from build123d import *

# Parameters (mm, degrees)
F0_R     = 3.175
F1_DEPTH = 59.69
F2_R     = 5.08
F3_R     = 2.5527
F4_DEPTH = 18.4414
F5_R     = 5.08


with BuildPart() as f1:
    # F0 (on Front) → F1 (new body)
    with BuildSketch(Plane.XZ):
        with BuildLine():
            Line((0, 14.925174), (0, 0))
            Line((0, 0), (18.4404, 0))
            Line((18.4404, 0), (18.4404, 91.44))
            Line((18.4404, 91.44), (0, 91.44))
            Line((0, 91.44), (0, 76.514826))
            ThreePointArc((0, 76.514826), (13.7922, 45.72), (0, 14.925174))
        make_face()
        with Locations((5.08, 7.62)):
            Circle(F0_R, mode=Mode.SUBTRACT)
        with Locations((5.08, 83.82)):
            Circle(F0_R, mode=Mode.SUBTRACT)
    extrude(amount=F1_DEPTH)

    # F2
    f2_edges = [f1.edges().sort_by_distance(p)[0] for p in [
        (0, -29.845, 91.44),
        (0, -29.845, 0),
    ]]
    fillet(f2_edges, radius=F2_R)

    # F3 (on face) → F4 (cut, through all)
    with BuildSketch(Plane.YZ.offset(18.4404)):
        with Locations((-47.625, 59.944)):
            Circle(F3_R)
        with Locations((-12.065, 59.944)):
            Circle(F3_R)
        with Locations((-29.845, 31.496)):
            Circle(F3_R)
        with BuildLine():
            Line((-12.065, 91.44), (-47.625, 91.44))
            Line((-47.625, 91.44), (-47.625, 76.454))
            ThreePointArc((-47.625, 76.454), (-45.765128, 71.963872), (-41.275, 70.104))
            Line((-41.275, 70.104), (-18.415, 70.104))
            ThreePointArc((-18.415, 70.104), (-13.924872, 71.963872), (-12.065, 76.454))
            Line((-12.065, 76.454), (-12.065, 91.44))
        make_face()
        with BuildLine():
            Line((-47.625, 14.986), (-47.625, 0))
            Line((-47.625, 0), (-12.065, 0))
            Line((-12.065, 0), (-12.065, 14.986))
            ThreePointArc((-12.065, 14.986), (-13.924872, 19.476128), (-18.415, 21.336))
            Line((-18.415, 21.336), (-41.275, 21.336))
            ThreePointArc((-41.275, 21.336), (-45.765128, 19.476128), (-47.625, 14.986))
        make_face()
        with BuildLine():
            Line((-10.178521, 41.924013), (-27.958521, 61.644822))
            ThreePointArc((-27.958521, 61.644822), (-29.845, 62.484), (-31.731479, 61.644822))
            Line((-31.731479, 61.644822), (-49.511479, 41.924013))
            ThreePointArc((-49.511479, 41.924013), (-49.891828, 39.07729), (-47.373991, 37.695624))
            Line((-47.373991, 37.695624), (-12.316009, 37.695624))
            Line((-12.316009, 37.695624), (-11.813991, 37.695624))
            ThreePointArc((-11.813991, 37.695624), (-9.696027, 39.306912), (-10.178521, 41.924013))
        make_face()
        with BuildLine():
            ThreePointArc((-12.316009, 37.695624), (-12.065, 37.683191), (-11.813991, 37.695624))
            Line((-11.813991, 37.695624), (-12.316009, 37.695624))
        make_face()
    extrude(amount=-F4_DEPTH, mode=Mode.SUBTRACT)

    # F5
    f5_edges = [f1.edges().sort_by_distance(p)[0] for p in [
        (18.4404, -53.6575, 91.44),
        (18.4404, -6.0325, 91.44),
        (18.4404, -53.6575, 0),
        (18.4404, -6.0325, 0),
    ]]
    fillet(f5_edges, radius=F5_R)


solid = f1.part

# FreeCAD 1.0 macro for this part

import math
import FreeCAD as App
import Part
import Sketcher

V = App.Vector
Q = App.Units.Quantity


def edges_at(feature, points):
    """Names of the edges that pass closest to the given points."""
    edges = feature.Shape.Edges
    near = lambda p: min(range(len(edges)), key=lambda i: edges[i].distToShape(Part.Vertex(*p))[0])
    return sorted({f"Edge{near(p) + 1}" for p in points})

doc = App.newDocument("Part")
body = doc.addObject("PartDesign::Body", "Body")

sketch1 = body.newObject("Sketcher::SketchObject", "Sketch")
sketch1.AttachmentSupport = (doc.getObject("XZ_Plane"), [""])
sketch1.MapMode = "FlatFace"
sketch1.addGeometry([
    Part.LineSegment(V(0, 14.9, 0), V(0, 0, 0)),
    Part.LineSegment(V(0, 0, 0), V(18.4, 0, 0)),
    Part.LineSegment(V(18.4, 0, 0), V(18.4, 91.4, 0)),
    Part.LineSegment(V(18.4, 91.4, 0), V(0, 91.4, 0)),
    Part.LineSegment(V(0, 91.4, 0), V(0, 76.5, 0)),
    Part.ArcOfCircle(Part.Circle(V(-27.5, 45.7, 0), V(0, 0, 1), 41.3), math.radians(-48), math.radians(48)),
    Part.Circle(V(5.1, 7.6, 0), V(0, 0, 1), 3.2),
    Part.Circle(V(5.1, 83.8, 0), V(0, 0, 1), 3.2),
], False)
sketch1.addConstraint([
    Sketcher.Constraint("Coincident", 0, 2, 1, 1),
    Sketcher.Constraint("Coincident", 1, 2, 2, 1),
    Sketcher.Constraint("Coincident", 2, 2, 3, 1),
    Sketcher.Constraint("Coincident", 3, 2, 4, 1),
    Sketcher.Constraint("Coincident", 4, 2, 5, 2),
    Sketcher.Constraint("Coincident", 5, 1, 0, 1),
    Sketcher.Constraint("Vertical", 0),
    Sketcher.Constraint("Horizontal", 1),
    Sketcher.Constraint("Vertical", 2),
    Sketcher.Constraint("Horizontal", 3),
    Sketcher.Constraint("Vertical", 4),
    Sketcher.Constraint("Coincident", 0, 2, -1, 1),
    Sketcher.Constraint("Equal", 6, 7),
    Sketcher.Constraint("PointOnObject", 3, 2, -2),
    Sketcher.Constraint("Vertical", 6, 3, 7, 3),
    Sketcher.Constraint("Equal", 0, 4),
    Sketcher.Constraint("Diameter", 6, Q("0.25 in")),
    Sketcher.Constraint("DistanceY", 2, 1, 2, 2, Q("3.6 in")),
    Sketcher.Constraint("Radius", 5, Q("1.625 in")),
    Sketcher.Constraint("DistanceY", 6, 3, 7, 3, Q("3 in")),
    Sketcher.Constraint("DistanceX", -1, 1, 6, 3, Q("0.2 in")),
    Sketcher.Constraint("DistanceY", -1, 1, 6, 3, Q("0.3 in")),
    Sketcher.Constraint("DistanceX", 1, 1, 1, 2, Q("0.726 in")),
    Sketcher.Constraint("DistanceX", 5, 3, -1, 1, Q("1.082 in")),
])
pad1 = body.newObject("PartDesign::Pad", "Pad")
pad1.Profile = sketch1
pad1.Length = Q("2.35 in")
doc.recompute()

fillet = body.newObject("PartDesign::Fillet", "Fillet")
fillet.Base = (pad1, edges_at(pad1, [(0, -29.845, 91.44), (0, -29.845, 0)]))
fillet.Radius = Q("0.2 in")

sketch2 = body.newObject("Sketcher::SketchObject", "Sketch001")
sketch2.AttachmentSupport = (doc.getObject("YZ_Plane"), [""])
sketch2.MapMode = "FlatFace"
sketch2.AttachmentOffset = App.Placement(V(0, 0, 0.726 * 25.4), App.Rotation())
sketch2.addGeometry([
    Part.Circle(V(-47.6, 59.9, 0), V(0, 0, 1), 2.6),
    Part.Circle(V(-12.1, 59.9, 0), V(0, 0, 1), 2.6),
    Part.Circle(V(-29.8, 31.5, 0), V(0, 0, 1), 2.6),
    Part.LineSegment(V(-12.1, 91.4, 0), V(-47.6, 91.4, 0)),
    Part.LineSegment(V(-47.6, 91.4, 0), V(-47.6, 76.5, 0)),
    Part.ArcOfCircle(Part.Circle(V(-41.3, 76.5, 0), V(0, 0, 1), 6.4), math.radians(-180), math.radians(-90)),
    Part.LineSegment(V(-41.3, 70.1, 0), V(-18.4, 70.1, 0)),
    Part.ArcOfCircle(Part.Circle(V(-18.4, 76.5, 0), V(0, 0, 1), 6.4), math.radians(-90), math.radians(0)),
    Part.LineSegment(V(-12.1, 76.5, 0), V(-12.1, 91.4, 0)),
    Part.LineSegment(V(-47.6, 15, 0), V(-47.6, 0, 0)),
    Part.LineSegment(V(-47.6, 0, 0), V(-12.1, 0, 0)),
    Part.LineSegment(V(-12.1, 0, 0), V(-12.1, 15, 0)),
    Part.ArcOfCircle(Part.Circle(V(-18.4, 15, 0), V(0, 0, 1), 6.4), math.radians(0), math.radians(90)),
    Part.LineSegment(V(-18.4, 21.3, 0), V(-41.3, 21.3, 0)),
    Part.ArcOfCircle(Part.Circle(V(-41.3, 15, 0), V(0, 0, 1), 6.4), math.radians(90), math.radians(180)),
    Part.LineSegment(V(-10.2, 41.9, 0), V(-28, 61.6, 0)),
    Part.ArcOfCircle(Part.Circle(V(-29.8, 59.9, 0), V(0, 0, 1), 2.5), math.radians(42), math.radians(138)),
    Part.LineSegment(V(-31.7, 61.6, 0), V(-49.5, 41.9, 0)),
    Part.ArcOfCircle(Part.Circle(V(-47.6, 40.2, 0), V(0, 0, 1), 2.5), math.radians(138), math.radians(276)),
    Part.LineSegment(V(-47.4, 37.7, 0), V(-12.3, 37.7, 0)),
    Part.ArcOfCircle(Part.Circle(V(-12.1, 40.2, 0), V(0, 0, 1), 2.5), math.radians(-95.67), math.radians(-84.33)),
    Part.ArcOfCircle(Part.Circle(V(-12.1, 40.2, 0), V(0, 0, 1), 2.5), math.radians(-84), math.radians(42)),
], False)
sketch2.addConstraint([
    Sketcher.Constraint("Coincident", 3, 2, 4, 1),
    Sketcher.Constraint("Tangent", 4, 2, 5, 1),
    Sketcher.Constraint("Tangent", 5, 2, 6, 1),
    Sketcher.Constraint("Tangent", 6, 2, 7, 1),
    Sketcher.Constraint("Tangent", 7, 2, 8, 1),
    Sketcher.Constraint("Coincident", 8, 2, 3, 1),
    Sketcher.Constraint("Coincident", 9, 2, 10, 1),
    Sketcher.Constraint("Coincident", 10, 2, 11, 1),
    Sketcher.Constraint("Tangent", 11, 2, 12, 1),
    Sketcher.Constraint("Tangent", 12, 2, 13, 1),
    Sketcher.Constraint("Tangent", 13, 2, 14, 1),
    Sketcher.Constraint("Tangent", 14, 2, 9, 1),
    Sketcher.Constraint("Tangent", 15, 2, 16, 1),
    Sketcher.Constraint("Tangent", 16, 2, 17, 1),
    Sketcher.Constraint("Tangent", 17, 2, 18, 1),
    Sketcher.Constraint("Coincident", 18, 2, 19, 1),
    Sketcher.Constraint("Coincident", 19, 2, 20, 1),
    Sketcher.Constraint("Tangent", 20, 2, 21, 1),
    Sketcher.Constraint("Tangent", 21, 2, 15, 1),
    Sketcher.Constraint("Horizontal", 3),
    Sketcher.Constraint("Vertical", 4),
    Sketcher.Constraint("Horizontal", 6),
    Sketcher.Constraint("Vertical", 8),
    Sketcher.Constraint("Vertical", 9),
    Sketcher.Constraint("Horizontal", 10),
    Sketcher.Constraint("Vertical", 11),
    Sketcher.Constraint("Horizontal", 13),
    Sketcher.Constraint("Horizontal", 19),
    Sketcher.Constraint("Equal", 0, 1),
    Sketcher.Constraint("Equal", 1, 2),
    Sketcher.Constraint("Equal", 5, 7),
    Sketcher.Constraint("Equal", 7, 12),
    Sketcher.Constraint("Equal", 12, 14),
    Sketcher.Constraint("Equal", 16, 18),
    Sketcher.Constraint("Equal", 18, 21),
    Sketcher.Constraint("PointOnObject", 9, 2, -1),
    Sketcher.Constraint("Horizontal", 0, 3, 1, 3),
    Sketcher.Constraint("Horizontal", 1, 3, 16, 3),
    Sketcher.Constraint("Horizontal", 18, 3, 21, 3),
    Sketcher.Constraint("Horizontal", 15, 2, 16, 2),
    Sketcher.Constraint("Horizontal", 19, 2, 20, 2),
    Sketcher.Constraint("Vertical", 7, 3, 12, 3),
    Sketcher.Constraint("Vertical", 5, 3, 14, 3),
    Sketcher.Constraint("Vertical", 2, 3, 16, 3),
    Sketcher.Constraint("Vertical", 0, 3, 18, 3),
    Sketcher.Constraint("Vertical", 1, 3, 20, 3),
    Sketcher.Constraint("Vertical", 20, 3, 21, 3),
    Sketcher.Constraint("Vertical", 18, 3, 3, 2),
    Sketcher.Constraint("Vertical", 21, 3, 7, 2),
    Sketcher.Constraint("Equal", 8, 9),
    Sketcher.Constraint("Radius", 16, Q("0.1 in")),
    Sketcher.Constraint("Radius", 5, Q("0.25 in")),
    Sketcher.Constraint("Diameter", 0, Q("0.201 in")),
    Sketcher.Constraint("DistanceX", 3, 2, 3, 1, Q("1.4 in")),
    Sketcher.Constraint("DistanceY", 4, 2, 4, 1, Q("0.59 in")),
    Sketcher.Constraint("DistanceY", -1, 1, 3, 2, Q("3.6 in")),
    Sketcher.Constraint("DistanceY", 0, 3, 5, 2, Q("0.4 in")),
    Sketcher.Constraint("DistanceY", 12, 2, 2, 3, Q("0.4 in")),
    Sketcher.Constraint("DistanceX", 0, 3, -1, 1, Q("1.875 in")),
    Sketcher.Constraint("DistanceX", 19, 1, 19, 2, 35.057982),
    Sketcher.Constraint("DistanceY", -1, 1, 18, 3, 40.223191),
])
pocket1 = body.newObject("PartDesign::Pocket", "Pocket")
pocket1.Profile = sketch2
pocket1.Type = "ThroughAll"
doc.recompute()

fillet2 = body.newObject("PartDesign::Fillet", "Fillet001")
fillet2.Base = (pocket1, edges_at(pocket1, [
    (18.44, -53.657, 91.44),
    (18.44, -6.032, 91.44),
    (18.44, -53.657, 0),
    (18.44, -6.032, 0),
]))
fillet2.Radius = Q("0.2 in")

doc.recompute()
